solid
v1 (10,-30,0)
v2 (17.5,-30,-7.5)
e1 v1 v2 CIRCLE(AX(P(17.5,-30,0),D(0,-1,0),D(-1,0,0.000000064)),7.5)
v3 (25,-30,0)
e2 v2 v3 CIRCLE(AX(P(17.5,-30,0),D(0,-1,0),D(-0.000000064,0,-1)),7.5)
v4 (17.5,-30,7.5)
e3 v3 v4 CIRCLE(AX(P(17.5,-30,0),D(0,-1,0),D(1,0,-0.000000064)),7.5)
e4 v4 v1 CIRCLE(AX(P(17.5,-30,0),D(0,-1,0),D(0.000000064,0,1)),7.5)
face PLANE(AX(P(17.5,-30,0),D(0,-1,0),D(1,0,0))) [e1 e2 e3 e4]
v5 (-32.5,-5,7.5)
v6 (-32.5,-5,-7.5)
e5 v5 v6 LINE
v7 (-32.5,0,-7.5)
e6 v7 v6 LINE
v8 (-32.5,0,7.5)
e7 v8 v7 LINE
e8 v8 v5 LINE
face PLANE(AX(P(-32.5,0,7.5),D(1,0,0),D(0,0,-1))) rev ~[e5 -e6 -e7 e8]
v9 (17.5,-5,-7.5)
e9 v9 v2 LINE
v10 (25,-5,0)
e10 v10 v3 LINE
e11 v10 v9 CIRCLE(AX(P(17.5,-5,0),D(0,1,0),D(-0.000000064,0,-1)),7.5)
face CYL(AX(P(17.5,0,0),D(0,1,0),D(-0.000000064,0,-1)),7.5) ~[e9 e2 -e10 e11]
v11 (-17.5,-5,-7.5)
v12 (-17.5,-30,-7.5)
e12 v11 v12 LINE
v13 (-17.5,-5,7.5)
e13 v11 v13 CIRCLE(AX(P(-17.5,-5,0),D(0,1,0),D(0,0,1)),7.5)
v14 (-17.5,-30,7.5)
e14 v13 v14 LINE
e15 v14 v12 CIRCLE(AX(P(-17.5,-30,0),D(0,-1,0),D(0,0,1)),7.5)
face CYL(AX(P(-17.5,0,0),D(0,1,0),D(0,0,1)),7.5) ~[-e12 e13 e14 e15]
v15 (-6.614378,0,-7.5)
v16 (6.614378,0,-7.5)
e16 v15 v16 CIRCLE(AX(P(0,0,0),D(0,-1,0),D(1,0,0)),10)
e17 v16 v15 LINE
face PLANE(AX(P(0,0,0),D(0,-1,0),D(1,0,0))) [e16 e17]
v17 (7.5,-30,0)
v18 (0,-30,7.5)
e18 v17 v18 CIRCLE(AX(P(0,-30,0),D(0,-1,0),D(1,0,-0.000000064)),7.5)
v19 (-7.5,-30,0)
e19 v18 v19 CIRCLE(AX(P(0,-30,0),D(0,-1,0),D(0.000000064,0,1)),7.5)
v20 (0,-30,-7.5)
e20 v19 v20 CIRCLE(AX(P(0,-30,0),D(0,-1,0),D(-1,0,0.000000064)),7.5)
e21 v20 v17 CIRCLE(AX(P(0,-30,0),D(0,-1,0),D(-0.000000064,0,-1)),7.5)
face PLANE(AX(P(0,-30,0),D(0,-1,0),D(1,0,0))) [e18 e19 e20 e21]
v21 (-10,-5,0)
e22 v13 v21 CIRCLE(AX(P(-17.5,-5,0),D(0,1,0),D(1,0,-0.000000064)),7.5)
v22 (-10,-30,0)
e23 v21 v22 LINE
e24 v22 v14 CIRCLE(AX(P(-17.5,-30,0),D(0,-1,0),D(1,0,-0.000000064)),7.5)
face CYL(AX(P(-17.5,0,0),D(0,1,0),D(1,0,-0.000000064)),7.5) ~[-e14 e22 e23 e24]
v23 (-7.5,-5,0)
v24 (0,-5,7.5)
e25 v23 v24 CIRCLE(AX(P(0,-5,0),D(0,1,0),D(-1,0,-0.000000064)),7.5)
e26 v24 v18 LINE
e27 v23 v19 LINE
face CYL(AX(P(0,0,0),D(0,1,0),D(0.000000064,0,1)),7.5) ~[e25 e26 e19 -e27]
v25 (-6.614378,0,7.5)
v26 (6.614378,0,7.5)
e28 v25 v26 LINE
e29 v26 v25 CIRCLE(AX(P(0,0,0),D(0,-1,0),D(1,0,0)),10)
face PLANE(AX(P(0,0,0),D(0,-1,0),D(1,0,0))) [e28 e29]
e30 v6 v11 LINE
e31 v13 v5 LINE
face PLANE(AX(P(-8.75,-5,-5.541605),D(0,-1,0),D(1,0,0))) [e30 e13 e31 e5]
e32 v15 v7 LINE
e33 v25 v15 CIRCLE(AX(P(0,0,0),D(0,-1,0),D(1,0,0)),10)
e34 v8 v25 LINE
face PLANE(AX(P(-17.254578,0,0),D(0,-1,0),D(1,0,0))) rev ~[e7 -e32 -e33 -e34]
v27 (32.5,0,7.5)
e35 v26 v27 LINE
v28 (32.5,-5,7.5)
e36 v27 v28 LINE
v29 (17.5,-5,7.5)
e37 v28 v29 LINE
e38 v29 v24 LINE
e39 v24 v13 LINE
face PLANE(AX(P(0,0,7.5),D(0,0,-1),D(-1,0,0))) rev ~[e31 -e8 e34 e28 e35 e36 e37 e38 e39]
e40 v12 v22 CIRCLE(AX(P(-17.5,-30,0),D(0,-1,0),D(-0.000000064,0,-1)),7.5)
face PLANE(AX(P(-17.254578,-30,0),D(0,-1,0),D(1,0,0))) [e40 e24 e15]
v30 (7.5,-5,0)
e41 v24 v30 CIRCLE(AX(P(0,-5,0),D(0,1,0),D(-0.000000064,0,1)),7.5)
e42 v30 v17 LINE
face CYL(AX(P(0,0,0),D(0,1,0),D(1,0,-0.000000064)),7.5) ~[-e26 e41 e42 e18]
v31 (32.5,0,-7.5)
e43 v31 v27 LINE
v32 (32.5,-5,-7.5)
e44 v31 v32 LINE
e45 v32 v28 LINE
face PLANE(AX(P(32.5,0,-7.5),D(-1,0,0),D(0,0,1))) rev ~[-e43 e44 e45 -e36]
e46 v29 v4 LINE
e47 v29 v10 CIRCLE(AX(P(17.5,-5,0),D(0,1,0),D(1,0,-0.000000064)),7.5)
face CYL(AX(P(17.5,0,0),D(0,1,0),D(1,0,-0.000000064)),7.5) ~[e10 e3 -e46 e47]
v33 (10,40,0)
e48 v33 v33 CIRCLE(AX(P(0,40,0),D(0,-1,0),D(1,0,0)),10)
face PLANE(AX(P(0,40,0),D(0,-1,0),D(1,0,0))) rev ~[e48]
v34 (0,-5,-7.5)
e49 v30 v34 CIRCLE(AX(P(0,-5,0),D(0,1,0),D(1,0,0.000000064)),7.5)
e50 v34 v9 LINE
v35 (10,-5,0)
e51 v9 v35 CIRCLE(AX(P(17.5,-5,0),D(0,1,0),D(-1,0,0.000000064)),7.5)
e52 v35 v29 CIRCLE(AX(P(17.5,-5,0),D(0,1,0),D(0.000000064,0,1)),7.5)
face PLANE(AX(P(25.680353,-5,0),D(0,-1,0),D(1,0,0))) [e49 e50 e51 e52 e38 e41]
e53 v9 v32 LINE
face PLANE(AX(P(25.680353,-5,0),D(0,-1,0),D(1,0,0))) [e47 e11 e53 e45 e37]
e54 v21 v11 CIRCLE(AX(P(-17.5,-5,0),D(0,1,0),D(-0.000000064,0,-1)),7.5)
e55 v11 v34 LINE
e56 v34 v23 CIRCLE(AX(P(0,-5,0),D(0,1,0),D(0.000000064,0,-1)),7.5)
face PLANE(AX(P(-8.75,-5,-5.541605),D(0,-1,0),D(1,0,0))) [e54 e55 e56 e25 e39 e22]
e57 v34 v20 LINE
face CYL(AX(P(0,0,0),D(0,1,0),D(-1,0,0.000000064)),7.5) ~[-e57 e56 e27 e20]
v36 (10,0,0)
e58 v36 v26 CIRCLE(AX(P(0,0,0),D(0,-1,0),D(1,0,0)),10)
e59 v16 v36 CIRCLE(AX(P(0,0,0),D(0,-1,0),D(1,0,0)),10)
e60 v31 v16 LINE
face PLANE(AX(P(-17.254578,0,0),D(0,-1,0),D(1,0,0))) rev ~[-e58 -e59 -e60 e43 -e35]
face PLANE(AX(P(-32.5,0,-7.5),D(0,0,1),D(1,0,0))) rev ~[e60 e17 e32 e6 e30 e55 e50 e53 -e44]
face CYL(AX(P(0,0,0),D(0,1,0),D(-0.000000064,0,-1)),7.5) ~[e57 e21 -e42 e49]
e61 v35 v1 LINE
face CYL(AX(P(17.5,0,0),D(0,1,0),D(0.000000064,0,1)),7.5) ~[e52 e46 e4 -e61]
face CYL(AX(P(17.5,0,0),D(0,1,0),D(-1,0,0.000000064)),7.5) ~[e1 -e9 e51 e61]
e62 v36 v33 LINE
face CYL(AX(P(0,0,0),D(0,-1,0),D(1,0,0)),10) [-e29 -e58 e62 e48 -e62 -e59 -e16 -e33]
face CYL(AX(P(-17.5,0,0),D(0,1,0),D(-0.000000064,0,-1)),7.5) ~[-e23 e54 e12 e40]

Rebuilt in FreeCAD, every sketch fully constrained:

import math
import FreeCAD as App
import Part
import Sketcher

V = App.Vector
Q = App.Units.Quantity

doc = App.newDocument("Part")
body = doc.addObject("PartDesign::Body", "Body")
body.AllowCompound = True

# Sketch on XZ plane
sketch1 = body.newObject("Sketcher::SketchObject", "Sketch")
sketch1.AttachmentSupport = (doc.getObject("XZ_Plane"), [""])
sketch1.MapMode = "FlatFace"
sketch1.addGeometry([
    Part.LineSegment(V(32, -8, 0), V(32, 8, 0)),  # 0
    Part.LineSegment(V(32, 8, 0), V(0, 8, 0)),  # 1
    Part.ArcOfCircle(Part.Circle(V(0, 0, 0), V(0, 0, 1), 7), math.radians(0), math.radians(90)),  # 2
    Part.ArcOfCircle(Part.Circle(V(0, 0, 0), V(0, 0, 1), 7), math.radians(-90), math.radians(0)),  # 3
    Part.LineSegment(V(0, -8, 0), V(32, -8, 0)),  # 4
    Part.ArcOfCircle(Part.Circle(V(0, 0, 0), V(0, 0, 1), 7), math.radians(180), math.radians(270)),  # 5
    Part.ArcOfCircle(Part.Circle(V(0, 0, 0), V(0, 0, 1), 7), math.radians(90), math.radians(180)),  # 6
    Part.LineSegment(V(0, 8, 0), V(-32, 8, 0)),  # 7
    Part.LineSegment(V(-32, 8, 0), V(-32, -8, 0)),  # 8
    Part.LineSegment(V(-32, -8, 0), V(0, -8, 0)),  # 9
], False)
sketch1.addConstraint([
    Sketcher.Constraint("Coincident", 0, 2, 1, 1),
    Sketcher.Constraint("Tangent", 1, 2, 2, 2),
    Sketcher.Constraint("Tangent", 2, 1, 3, 2),
    Sketcher.Constraint("Tangent", 3, 1, 4, 1),
    Sketcher.Constraint("Coincident", 4, 2, 0, 1),
    Sketcher.Constraint("Tangent", 5, 1, 6, 2),
    Sketcher.Constraint("Tangent", 6, 1, 7, 1),
    Sketcher.Constraint("Coincident", 7, 2, 8, 1),
    Sketcher.Constraint("Coincident", 8, 2, 9, 1),
    Sketcher.Constraint("Tangent", 9, 2, 5, 2),
    Sketcher.Constraint("Vertical", 0),
    Sketcher.Constraint("Horizontal", 1),
    Sketcher.Constraint("Horizontal", 4),
    Sketcher.Constraint("Horizontal", 7),
    Sketcher.Constraint("Vertical", 8),
    Sketcher.Constraint("Horizontal", 9),
    Sketcher.Constraint("Coincident", 2, 3, -1, 1),
    Sketcher.Constraint("Coincident", 5, 3, -1, 1),
    Sketcher.Constraint("Coincident", 6, 1, 1, 2),
    Sketcher.Constraint("Equal", 2, 3),
    Sketcher.Constraint("PointOnObject", 2, 1, -1),
    Sketcher.Constraint("PointOnObject", 5, 1, -1),
    Sketcher.Constraint("Equal", 4, 7),
    Sketcher.Constraint("Radius", 2, Q("7.5 mm")),
    Sketcher.Constraint("DistanceX", 1, 2, 1, 1, Q("32.5 mm")),
])
pad1 = body.newObject("PartDesign::Pad", "Pad")
pad1.Profile = sketch1
pad1.Length = 5

# Sketch on XZ plane
sketch2 = body.newObject("Sketcher::SketchObject", "Sketch001")
sketch2.AttachmentSupport = (doc.getObject("XZ_Plane"), [""])
sketch2.MapMode = "FlatFace"
sketch2.addGeometry([
    Part.ArcOfCircle(Part.Circle(V(-18, 0, 0), V(0, 0, 1), 8), math.radians(90), math.radians(270)),  # 0
    Part.ArcOfCircle(Part.Circle(V(-17, 0, 0), V(0, 0, 1), 7), math.radians(-90), math.radians(0)),  # 1
    Part.ArcOfCircle(Part.Circle(V(-17, 0, 0), V(0, 0, 1), 7), math.radians(0), math.radians(90)),  # 2
    Part.ArcOfCircle(Part.Circle(V(0, 0, 0), V(0, 0, 1), 7), math.radians(180), math.radians(270)),  # 3
    Part.ArcOfCircle(Part.Circle(V(0, 0, 0), V(0, 0, 1), 7), math.radians(-90), math.radians(0)),  # 4
    Part.ArcOfCircle(Part.Circle(V(0, 0, 0), V(0, 0, 1), 7), math.radians(0), math.radians(90)),  # 5
    Part.ArcOfCircle(Part.Circle(V(0, 0, 0), V(0, 0, 1), 7), math.radians(90), math.radians(180)),  # 6
    Part.ArcOfCircle(Part.Circle(V(17, 0, 0), V(0, 0, 1), 7), math.radians(180), math.radians(270)),  # 7
    Part.ArcOfCircle(Part.Circle(V(18, 0, 0), V(0, 0, 1), 7), math.radians(-90), math.radians(0)),  # 8
    Part.ArcOfCircle(Part.Circle(V(18, 0, 0), V(0, 0, 1), 7), math.radians(0), math.radians(90)),  # 9
    Part.ArcOfCircle(Part.Circle(V(17, 0, 0), V(0, 0, 1), 7), math.radians(90), math.radians(180)),  # 10
], False)
sketch2.addConstraint([
    Sketcher.Constraint("Tangent", 0, 2, 1, 1),
    Sketcher.Constraint("Tangent", 1, 2, 2, 1),
    Sketcher.Constraint("Tangent", 2, 2, 0, 1),
    Sketcher.Constraint("Tangent", 3, 2, 4, 1),
    Sketcher.Constraint("Tangent", 4, 2, 5, 1),
    Sketcher.Constraint("Tangent", 5, 2, 6, 1),
    Sketcher.Constraint("Tangent", 6, 2, 3, 1),
    Sketcher.Constraint("Tangent", 7, 2, 8, 1),
    Sketcher.Constraint("Tangent", 8, 2, 9, 1),
    Sketcher.Constraint("Tangent", 9, 2, 10, 1),
    Sketcher.Constraint("Tangent", 10, 2, 7, 1),
    Sketcher.Constraint("Coincident", 3, 3, -1, 1),
    Sketcher.Constraint("Equal", 2, 3),
    Sketcher.Constraint("Equal", 3, 4),
    Sketcher.Constraint("Equal", 6, 7),
    Sketcher.Constraint("Equal", 7, 8),
    Sketcher.Constraint("Symmetric", 0, 3, 7, 3, -1, 1),
    Sketcher.Constraint("Symmetric", 0, 2, 7, 2, -2),
    Sketcher.Constraint("PointOnObject", 1, 2, -1),
    Sketcher.Constraint("PointOnObject", 3, 2, -2),
    Sketcher.Constraint("PointOnObject", 4, 2, -1),
    Sketcher.Constraint("PointOnObject", 5, 2, -2),
    Sketcher.Constraint("PointOnObject", 6, 2, -1),
    Sketcher.Constraint("PointOnObject", 8, 2, -1),
    Sketcher.Constraint("PointOnObject", 10, 2, -1),
    Sketcher.Constraint("Vertical", 2, 3, 0, 2),
    Sketcher.Constraint("Vertical", 0, 2, 2, 2),
    Sketcher.Constraint("Vertical", 7, 2, 9, 2),
    Sketcher.Constraint("Radius", 0, Q("7.5 mm")),
    Sketcher.Constraint("DistanceX", 1, 2, -1, 1, Q("10 mm")),
])
pad2 = body.newObject("PartDesign::Pad", "Pad001")
pad2.Profile = sketch2
pad2.Length = 30

# Sketch on XZ plane
sketch3 = body.newObject("Sketcher::SketchObject", "Sketch002")
sketch3.AttachmentSupport = (doc.getObject("XZ_Plane"), [""])
sketch3.MapMode = "FlatFace"
sketch3.addGeometry(Part.Circle(V(0, 0, 0), V(0, 0, 1), 10), False)
sketch3.addConstraint([
    Sketcher.Constraint("Coincident", 0, 3, -1, 1),
    Sketcher.Constraint("Diameter", 0, Q("20 mm")),
])
pad3 = body.newObject("PartDesign::Pad", "Pad002")
pad3.Profile = sketch3
pad3.Length = 40
pad3.Reversed = True

doc.recompute()
